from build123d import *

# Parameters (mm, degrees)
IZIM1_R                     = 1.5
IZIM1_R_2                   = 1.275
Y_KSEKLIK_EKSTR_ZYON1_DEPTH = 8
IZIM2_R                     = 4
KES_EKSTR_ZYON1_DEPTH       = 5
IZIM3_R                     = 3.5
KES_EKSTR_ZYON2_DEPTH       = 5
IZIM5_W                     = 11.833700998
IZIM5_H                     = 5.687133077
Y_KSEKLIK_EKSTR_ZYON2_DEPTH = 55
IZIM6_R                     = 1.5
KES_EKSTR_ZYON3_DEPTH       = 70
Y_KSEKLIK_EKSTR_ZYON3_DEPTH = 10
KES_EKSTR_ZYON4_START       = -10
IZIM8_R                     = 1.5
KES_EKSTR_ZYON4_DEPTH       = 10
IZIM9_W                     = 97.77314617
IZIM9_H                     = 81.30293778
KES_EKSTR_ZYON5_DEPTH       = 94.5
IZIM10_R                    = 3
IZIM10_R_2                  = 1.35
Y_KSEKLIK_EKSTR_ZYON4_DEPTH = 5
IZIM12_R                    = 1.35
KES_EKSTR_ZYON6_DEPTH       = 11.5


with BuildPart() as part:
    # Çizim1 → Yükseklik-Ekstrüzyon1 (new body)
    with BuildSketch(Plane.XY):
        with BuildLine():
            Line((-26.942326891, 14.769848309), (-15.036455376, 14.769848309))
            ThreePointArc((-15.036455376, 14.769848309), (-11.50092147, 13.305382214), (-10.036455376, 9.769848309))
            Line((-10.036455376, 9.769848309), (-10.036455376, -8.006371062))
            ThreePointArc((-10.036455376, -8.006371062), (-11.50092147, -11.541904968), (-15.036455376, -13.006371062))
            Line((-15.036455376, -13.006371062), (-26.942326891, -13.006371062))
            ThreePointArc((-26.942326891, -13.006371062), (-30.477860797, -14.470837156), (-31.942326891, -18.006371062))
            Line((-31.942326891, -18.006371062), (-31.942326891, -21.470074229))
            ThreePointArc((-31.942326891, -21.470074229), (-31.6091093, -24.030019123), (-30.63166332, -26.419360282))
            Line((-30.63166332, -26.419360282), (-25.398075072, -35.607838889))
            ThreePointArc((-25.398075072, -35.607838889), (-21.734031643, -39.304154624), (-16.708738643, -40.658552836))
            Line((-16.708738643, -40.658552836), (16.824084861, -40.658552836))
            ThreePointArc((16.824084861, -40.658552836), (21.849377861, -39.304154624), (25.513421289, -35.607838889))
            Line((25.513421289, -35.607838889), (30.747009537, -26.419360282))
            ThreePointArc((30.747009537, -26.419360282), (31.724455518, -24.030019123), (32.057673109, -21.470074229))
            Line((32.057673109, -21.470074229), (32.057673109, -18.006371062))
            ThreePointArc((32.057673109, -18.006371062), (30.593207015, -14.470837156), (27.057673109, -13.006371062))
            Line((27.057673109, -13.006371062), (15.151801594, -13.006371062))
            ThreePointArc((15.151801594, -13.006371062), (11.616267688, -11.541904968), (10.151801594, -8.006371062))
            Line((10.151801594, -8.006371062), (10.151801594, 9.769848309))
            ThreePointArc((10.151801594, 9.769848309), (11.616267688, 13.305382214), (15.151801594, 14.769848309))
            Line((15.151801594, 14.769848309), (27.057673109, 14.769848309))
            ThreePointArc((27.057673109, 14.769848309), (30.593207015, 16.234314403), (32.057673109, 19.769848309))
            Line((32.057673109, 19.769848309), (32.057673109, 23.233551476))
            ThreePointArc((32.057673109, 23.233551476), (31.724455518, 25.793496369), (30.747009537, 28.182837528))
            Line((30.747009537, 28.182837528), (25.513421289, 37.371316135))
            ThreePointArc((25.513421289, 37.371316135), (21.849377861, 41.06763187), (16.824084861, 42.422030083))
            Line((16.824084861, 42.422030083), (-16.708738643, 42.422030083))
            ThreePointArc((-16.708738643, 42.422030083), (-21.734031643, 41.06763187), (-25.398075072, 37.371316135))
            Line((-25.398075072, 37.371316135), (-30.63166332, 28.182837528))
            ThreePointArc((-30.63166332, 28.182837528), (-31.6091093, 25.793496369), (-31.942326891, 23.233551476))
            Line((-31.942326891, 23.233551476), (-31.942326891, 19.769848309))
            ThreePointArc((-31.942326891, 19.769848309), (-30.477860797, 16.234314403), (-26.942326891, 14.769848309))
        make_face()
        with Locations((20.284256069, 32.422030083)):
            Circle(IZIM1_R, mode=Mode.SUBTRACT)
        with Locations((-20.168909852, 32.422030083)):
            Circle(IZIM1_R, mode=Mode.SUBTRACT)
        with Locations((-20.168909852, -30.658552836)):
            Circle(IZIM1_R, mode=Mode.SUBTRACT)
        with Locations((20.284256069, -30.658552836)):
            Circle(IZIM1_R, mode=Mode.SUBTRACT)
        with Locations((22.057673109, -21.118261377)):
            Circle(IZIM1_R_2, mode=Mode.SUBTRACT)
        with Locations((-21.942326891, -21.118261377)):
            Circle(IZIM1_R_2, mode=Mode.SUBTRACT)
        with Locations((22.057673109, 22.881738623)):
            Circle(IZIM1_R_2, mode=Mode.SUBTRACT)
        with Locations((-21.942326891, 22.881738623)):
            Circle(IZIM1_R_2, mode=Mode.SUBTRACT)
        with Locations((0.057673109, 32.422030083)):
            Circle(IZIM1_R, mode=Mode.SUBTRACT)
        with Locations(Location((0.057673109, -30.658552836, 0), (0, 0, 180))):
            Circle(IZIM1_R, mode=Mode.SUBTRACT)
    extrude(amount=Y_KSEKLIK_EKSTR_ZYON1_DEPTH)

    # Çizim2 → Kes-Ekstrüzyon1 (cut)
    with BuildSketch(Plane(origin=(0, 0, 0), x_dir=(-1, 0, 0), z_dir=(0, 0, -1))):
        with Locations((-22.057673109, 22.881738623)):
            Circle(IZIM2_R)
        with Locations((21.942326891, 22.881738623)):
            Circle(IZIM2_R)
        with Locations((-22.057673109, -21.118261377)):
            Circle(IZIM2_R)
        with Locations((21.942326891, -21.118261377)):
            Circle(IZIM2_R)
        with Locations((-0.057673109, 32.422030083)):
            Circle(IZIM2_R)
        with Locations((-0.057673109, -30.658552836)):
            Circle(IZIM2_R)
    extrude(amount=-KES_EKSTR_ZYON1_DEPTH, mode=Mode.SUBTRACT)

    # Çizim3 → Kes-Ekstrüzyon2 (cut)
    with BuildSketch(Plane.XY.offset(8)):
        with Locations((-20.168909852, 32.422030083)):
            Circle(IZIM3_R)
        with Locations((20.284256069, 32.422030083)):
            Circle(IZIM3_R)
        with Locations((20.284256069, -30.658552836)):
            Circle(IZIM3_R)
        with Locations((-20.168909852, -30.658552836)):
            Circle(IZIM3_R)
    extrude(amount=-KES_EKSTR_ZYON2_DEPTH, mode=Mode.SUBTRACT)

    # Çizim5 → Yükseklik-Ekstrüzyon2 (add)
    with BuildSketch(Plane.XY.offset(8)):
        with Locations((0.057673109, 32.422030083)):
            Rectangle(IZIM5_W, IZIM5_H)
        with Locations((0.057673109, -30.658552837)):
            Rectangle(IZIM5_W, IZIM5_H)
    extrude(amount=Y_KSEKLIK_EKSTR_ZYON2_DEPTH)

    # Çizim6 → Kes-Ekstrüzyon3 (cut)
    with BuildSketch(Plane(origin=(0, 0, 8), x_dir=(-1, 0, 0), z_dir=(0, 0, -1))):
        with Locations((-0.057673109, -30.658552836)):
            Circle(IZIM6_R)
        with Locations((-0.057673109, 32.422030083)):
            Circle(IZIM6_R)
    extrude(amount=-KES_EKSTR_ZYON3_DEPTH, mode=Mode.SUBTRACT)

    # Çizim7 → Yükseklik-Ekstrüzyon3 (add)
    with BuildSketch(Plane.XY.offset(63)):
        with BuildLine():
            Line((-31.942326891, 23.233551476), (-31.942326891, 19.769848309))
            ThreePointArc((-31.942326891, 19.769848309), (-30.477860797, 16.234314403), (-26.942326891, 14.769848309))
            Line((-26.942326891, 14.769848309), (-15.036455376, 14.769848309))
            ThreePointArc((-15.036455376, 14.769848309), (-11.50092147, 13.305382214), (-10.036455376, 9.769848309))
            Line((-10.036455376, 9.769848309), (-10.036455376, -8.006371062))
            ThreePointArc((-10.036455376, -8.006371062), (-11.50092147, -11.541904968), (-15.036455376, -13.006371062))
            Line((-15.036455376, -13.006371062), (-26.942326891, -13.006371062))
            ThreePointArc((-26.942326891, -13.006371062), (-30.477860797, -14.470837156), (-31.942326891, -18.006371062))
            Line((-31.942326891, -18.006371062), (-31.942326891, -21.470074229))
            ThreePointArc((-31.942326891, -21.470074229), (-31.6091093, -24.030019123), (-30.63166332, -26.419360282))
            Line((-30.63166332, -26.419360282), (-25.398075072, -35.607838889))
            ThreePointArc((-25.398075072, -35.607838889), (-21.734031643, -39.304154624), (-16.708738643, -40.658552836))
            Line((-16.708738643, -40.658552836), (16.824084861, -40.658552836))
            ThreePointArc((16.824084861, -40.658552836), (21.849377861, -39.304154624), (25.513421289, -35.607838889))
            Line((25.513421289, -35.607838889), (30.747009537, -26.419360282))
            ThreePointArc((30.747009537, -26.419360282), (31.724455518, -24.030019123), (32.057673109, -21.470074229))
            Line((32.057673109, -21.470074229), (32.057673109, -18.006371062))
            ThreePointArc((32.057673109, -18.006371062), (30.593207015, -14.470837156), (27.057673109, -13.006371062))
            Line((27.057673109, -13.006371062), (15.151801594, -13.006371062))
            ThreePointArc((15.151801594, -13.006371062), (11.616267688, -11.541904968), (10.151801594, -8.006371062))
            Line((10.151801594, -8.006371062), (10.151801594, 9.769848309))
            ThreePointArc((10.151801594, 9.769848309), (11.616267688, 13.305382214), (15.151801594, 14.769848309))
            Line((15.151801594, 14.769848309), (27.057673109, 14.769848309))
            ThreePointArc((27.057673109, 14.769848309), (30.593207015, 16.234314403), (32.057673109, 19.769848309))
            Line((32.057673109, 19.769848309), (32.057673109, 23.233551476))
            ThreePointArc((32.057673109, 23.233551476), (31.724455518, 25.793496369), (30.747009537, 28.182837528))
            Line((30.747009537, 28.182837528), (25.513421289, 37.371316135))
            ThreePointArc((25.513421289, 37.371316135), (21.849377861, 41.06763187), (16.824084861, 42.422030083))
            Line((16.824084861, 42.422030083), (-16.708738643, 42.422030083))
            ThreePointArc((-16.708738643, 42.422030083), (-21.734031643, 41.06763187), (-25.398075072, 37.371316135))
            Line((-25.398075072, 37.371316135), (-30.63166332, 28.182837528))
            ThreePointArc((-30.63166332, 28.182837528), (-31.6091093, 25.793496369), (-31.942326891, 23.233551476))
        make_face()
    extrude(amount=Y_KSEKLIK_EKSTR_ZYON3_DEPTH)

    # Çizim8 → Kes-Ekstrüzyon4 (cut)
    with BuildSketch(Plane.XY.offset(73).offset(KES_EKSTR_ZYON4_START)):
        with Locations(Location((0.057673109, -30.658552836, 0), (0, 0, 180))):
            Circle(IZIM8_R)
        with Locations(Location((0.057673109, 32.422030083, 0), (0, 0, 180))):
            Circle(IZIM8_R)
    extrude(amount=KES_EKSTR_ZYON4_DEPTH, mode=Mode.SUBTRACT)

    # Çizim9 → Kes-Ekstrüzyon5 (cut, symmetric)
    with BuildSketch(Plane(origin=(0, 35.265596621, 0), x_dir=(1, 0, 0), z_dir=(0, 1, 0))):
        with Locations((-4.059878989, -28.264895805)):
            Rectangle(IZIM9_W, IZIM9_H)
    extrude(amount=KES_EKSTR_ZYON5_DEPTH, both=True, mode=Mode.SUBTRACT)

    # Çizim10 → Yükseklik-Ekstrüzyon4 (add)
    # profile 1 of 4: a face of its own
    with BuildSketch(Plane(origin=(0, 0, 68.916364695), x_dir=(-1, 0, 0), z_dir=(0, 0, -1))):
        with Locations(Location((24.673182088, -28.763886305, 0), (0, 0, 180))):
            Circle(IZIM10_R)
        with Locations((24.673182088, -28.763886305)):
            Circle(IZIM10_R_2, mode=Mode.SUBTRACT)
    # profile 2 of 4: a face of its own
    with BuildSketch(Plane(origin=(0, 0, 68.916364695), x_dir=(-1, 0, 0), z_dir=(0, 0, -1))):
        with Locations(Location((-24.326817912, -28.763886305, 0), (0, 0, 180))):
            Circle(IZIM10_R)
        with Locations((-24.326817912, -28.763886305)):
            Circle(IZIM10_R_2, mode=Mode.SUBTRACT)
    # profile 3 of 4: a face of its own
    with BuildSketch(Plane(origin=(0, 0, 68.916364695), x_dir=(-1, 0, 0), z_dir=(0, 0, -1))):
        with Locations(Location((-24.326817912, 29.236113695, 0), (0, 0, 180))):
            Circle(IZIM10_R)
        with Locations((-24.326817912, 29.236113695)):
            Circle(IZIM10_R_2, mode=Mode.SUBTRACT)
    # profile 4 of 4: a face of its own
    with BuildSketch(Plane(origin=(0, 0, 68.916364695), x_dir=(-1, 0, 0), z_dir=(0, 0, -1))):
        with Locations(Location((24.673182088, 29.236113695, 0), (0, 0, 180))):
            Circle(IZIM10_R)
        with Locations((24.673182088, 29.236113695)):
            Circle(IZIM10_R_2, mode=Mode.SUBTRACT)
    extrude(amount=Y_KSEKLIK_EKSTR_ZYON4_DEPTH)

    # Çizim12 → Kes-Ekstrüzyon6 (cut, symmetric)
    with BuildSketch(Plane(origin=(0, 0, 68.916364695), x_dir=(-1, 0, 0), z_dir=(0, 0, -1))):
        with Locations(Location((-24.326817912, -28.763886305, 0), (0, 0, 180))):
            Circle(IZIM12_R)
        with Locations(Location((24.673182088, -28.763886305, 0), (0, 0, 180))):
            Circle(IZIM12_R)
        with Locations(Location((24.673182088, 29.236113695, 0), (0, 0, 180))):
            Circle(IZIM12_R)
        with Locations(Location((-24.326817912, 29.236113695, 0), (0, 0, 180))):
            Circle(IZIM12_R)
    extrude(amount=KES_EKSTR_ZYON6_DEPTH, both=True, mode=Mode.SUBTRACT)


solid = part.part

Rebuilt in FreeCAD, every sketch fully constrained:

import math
import FreeCAD as App
import Part
import Sketcher
from FreeCAD import Vector

doc = App.newDocument("Part")
body = doc.addObject("PartDesign::Body", "Body")

# Sketch on XY plane
sketch1 = body.newObject("Sketcher::SketchObject", "Sketch")
sketch1.AttachmentSupport = (doc.getObject("XY_Plane"), [""])
sketch1.MapMode = "FlatFace"
sketch1.addGeometry([
    Part.LineSegment(Vector(-26.9, 14.8, 0), Vector(-15, 14.8, 0)),  # 0
    Part.ArcOfCircle(Part.Circle(Vector(-15, 9.8, 0), Vector(0, 0, 1), 5), math.radians(0), math.radians(90)),  # 1
    Part.LineSegment(Vector(-10, 9.8, 0), Vector(-10, -8, 0)),  # 2
    Part.ArcOfCircle(Part.Circle(Vector(-15, -8, 0), Vector(0, 0, 1), 5), math.radians(-90), math.radians(0)),  # 3
    Part.LineSegment(Vector(-15, -13, 0), Vector(-26.9, -13, 0)),  # 4
    Part.ArcOfCircle(Part.Circle(Vector(-26.9, -18, 0), Vector(0, 0, 1), 5), math.radians(90), math.radians(180)),  # 5
    Part.LineSegment(Vector(-31.9, -18, 0), Vector(-31.9, -21.5, 0)),  # 6
    Part.ArcOfCircle(Part.Circle(Vector(-21.9, -21.5, 0), Vector(0, 0, 1), 10), math.radians(180), math.radians(210)),  # 7
    Part.LineSegment(Vector(-30.6, -26.4, 0), Vector(-25.4, -35.6, 0)),  # 8
    Part.ArcOfCircle(Part.Circle(Vector(-16.7, -30.7, 0), Vector(0, 0, 1), 10), math.radians(-150), math.radians(-90)),  # 9
    Part.LineSegment(Vector(-16.7, -40.7, 0), Vector(16.8, -40.7, 0)),  # 10
    Part.ArcOfCircle(Part.Circle(Vector(16.8, -30.7, 0), Vector(0, 0, 1), 10), math.radians(-90), math.radians(-30)),  # 11
    Part.LineSegment(Vector(25.5, -35.6, 0), Vector(30.7, -26.4, 0)),  # 12
    Part.ArcOfCircle(Part.Circle(Vector(22.1, -21.5, 0), Vector(0, 0, 1), 10), math.radians(-30), math.radians(0)),  # 13
    Part.LineSegment(Vector(32.1, -21.5, 0), Vector(32.1, -18, 0)),  # 14
    Part.ArcOfCircle(Part.Circle(Vector(27.1, -18, 0), Vector(0, 0, 1), 5), math.radians(0), math.radians(90)),  # 15
    Part.LineSegment(Vector(27.1, -13, 0), Vector(15.2, -13, 0)),  # 16
    Part.ArcOfCircle(Part.Circle(Vector(15.2, -8, 0), Vector(0, 0, 1), 5), math.radians(180), math.radians(270)),  # 17
    Part.LineSegment(Vector(10.2, -8, 0), Vector(10.2, 9.8, 0)),  # 18
    Part.ArcOfCircle(Part.Circle(Vector(15.2, 9.8, 0), Vector(0, 0, 1), 5), math.radians(90), math.radians(180)),  # 19
    Part.LineSegment(Vector(15.2, 14.8, 0), Vector(27.1, 14.8, 0)),  # 20
    Part.ArcOfCircle(Part.Circle(Vector(27.1, 19.8, 0), Vector(0, 0, 1), 5), math.radians(-90), math.radians(0)),  # 21
    Part.LineSegment(Vector(32.1, 19.8, 0), Vector(32.1, 23.2, 0)),  # 22
    Part.ArcOfCircle(Part.Circle(Vector(22.1, 23.2, 0), Vector(0, 0, 1), 10), math.radians(0), math.radians(30)),  # 23
    Part.LineSegment(Vector(30.7, 28.2, 0), Vector(25.5, 37.4, 0)),  # 24
    Part.ArcOfCircle(Part.Circle(Vector(16.8, 32.4, 0), Vector(0, 0, 1), 10), math.radians(30), math.radians(90)),  # 25
    Part.LineSegment(Vector(16.8, 42.4, 0), Vector(-16.7, 42.4, 0)),  # 26
    Part.ArcOfCircle(Part.Circle(Vector(-16.7, 32.4, 0), Vector(0, 0, 1), 10), math.radians(90), math.radians(150)),  # 27
    Part.LineSegment(Vector(-25.4, 37.4, 0), Vector(-30.6, 28.2, 0)),  # 28
    Part.ArcOfCircle(Part.Circle(Vector(-21.9, 23.2, 0), Vector(0, 0, 1), 10), math.radians(150), math.radians(180)),  # 29
    Part.LineSegment(Vector(-31.9, 23.2, 0), Vector(-31.9, 19.8, 0)),  # 30
    Part.ArcOfCircle(Part.Circle(Vector(-26.9, 19.8, 0), Vector(0, 0, 1), 5), math.radians(180), math.radians(270)),  # 31
    Part.Circle(Vector(-20.2, -30.7, 0), Vector(0, 0, 1), 1.5),  # 32
    Part.Circle(Vector(-21.9, -21.1, 0), Vector(0, 0, 1), 1.3),  # 33
    Part.Circle(Vector(0.1, -30.7, 0), Vector(0, 0, 1), 1.5),  # 34
    Part.Circle(Vector(20.3, -30.7, 0), Vector(0, 0, 1), 1.5),  # 35
    Part.Circle(Vector(22.1, -21.1, 0), Vector(0, 0, 1), 1.3),  # 36
    Part.Circle(Vector(-21.9, 22.9, 0), Vector(0, 0, 1), 1.3),  # 37
    Part.Circle(Vector(-20.2, 32.4, 0), Vector(0, 0, 1), 1.5),  # 38
    Part.Circle(Vector(0.1, 32.4, 0), Vector(0, 0, 1), 1.5),  # 39
    Part.Circle(Vector(22.1, 22.9, 0), Vector(0, 0, 1), 1.3),  # 40
    Part.Circle(Vector(20.3, 32.4, 0), Vector(0, 0, 1), 1.5),  # 41
], False)
sketch1.addConstraint([
    Sketcher.Constraint("Tangent", 0, 2, 1, 2),
    Sketcher.Constraint("Tangent", 1, 1, 2, 1),
    Sketcher.Constraint("Tangent", 2, 2, 3, 2),
    Sketcher.Constraint("Tangent", 3, 1, 4, 1),
    Sketcher.Constraint("Tangent", 4, 2, 5, 1),
    Sketcher.Constraint("Tangent", 5, 2, 6, 1),
    Sketcher.Constraint("Tangent", 6, 2, 7, 1),
    Sketcher.Constraint("Tangent", 7, 2, 8, 1),
    Sketcher.Constraint("Tangent", 8, 2, 9, 1),
    Sketcher.Constraint("Tangent", 9, 2, 10, 1),
    Sketcher.Constraint("Tangent", 10, 2, 11, 1),
    Sketcher.Constraint("Tangent", 11, 2, 12, 1),
    Sketcher.Constraint("Tangent", 12, 2, 13, 1),
    Sketcher.Constraint("Tangent", 13, 2, 14, 1),
    Sketcher.Constraint("Tangent", 14, 2, 15, 1),
    Sketcher.Constraint("Tangent", 15, 2, 16, 1),
    Sketcher.Constraint("Tangent", 16, 2, 17, 2),
    Sketcher.Constraint("Tangent", 17, 1, 18, 1),
    Sketcher.Constraint("Tangent", 18, 2, 19, 2),
    Sketcher.Constraint("Tangent", 19, 1, 20, 1),
    Sketcher.Constraint("Tangent", 20, 2, 21, 1),
    Sketcher.Constraint("Tangent", 21, 2, 22, 1),
    Sketcher.Constraint("Tangent", 22, 2, 23, 1),
    Sketcher.Constraint("Tangent", 23, 2, 24, 1),
    Sketcher.Constraint("Tangent", 24, 2, 25, 1),
    Sketcher.Constraint("Tangent", 25, 2, 26, 1),
    Sketcher.Constraint("Tangent", 26, 2, 27, 1),
    Sketcher.Constraint("Tangent", 27, 2, 28, 1),
    Sketcher.Constraint("Tangent", 28, 2, 29, 1),
    Sketcher.Constraint("Tangent", 29, 2, 30, 1),
    Sketcher.Constraint("Tangent", 30, 2, 31, 1),
    Sketcher.Constraint("Tangent", 31, 2, 0, 1),
    Sketcher.Constraint("Horizontal", 0),
    Sketcher.Constraint("Vertical", 2),
    Sketcher.Constraint("Horizontal", 4),
    Sketcher.Constraint("Vertical", 6),
    Sketcher.Constraint("Horizontal", 10),
    Sketcher.Constraint("Vertical", 14),
    Sketcher.Constraint("Horizontal", 16),
    Sketcher.Constraint("Vertical", 18),
    Sketcher.Constraint("Horizontal", 20),
    Sketcher.Constraint("Vertical", 22),
    Sketcher.Constraint("Horizontal", 26),
    Sketcher.Constraint("Vertical", 30),
    Sketcher.Constraint("Equal", 1, 3),
    Sketcher.Constraint("Equal", 3, 5),
    Sketcher.Constraint("Equal", 7, 9),
    Sketcher.Constraint("Equal", 9, 11),
    Sketcher.Constraint("Equal", 11, 13),
    Sketcher.Constraint("Equal", 5, 15),
    Sketcher.Constraint("Equal", 15, 17),
    Sketcher.Constraint("Equal", 17, 19),
    Sketcher.Constraint("Equal", 19, 21),
    Sketcher.Constraint("Equal", 13, 23),
    Sketcher.Constraint("Equal", 23, 25),
    Sketcher.Constraint("Equal", 25, 27),
    Sketcher.Constraint("Equal", 27, 29),
    Sketcher.Constraint("Equal", 21, 31),
    Sketcher.Constraint("Equal", 32, 34),
    Sketcher.Constraint("Equal", 34, 35),
    Sketcher.Constraint("Equal", 33, 36),
    Sketcher.Constraint("Equal", 36, 37),
    Sketcher.Constraint("Equal", 35, 38),
    Sketcher.Constraint("Equal", 38, 39),
    Sketcher.Constraint("Equal", 37, 40),
    Sketcher.Constraint("Equal", 39, 41),
    Sketcher.Constraint("Parallel", 8, 24),
    Sketcher.Constraint("Parallel", 12, 28),
    Sketcher.Constraint("Horizontal", 7, 3, 13, 3),
    Sketcher.Constraint("Horizontal", 5, 3, 15, 3),
    Sketcher.Constraint("Horizontal", 1, 3, 19, 3),
    Sketcher.Constraint("Horizontal", 23, 3, 29, 3),
    Sketcher.Constraint("Horizontal", 11, 3, 32, 3),
    Sketcher.Constraint("Horizontal", 32, 3, 34, 3),
    Sketcher.Constraint("Horizontal", 34, 3, 35, 3),
    Sketcher.Constraint("Horizontal", 33, 3, 36, 3),
    Sketcher.Constraint("Horizontal", 27, 3, 38, 3),
    Sketcher.Constraint("Horizontal", 38, 3, 39, 3),
    Sketcher.Constraint("Horizontal", 37, 3, 40, 3),
    Sketcher.Constraint("Horizontal", 39, 3, 41, 3),
    Sketcher.Constraint("Horizontal", 8, 2, 11, 2),
    Sketcher.Constraint("Vertical", 15, 3, 21, 3),
    Sketcher.Constraint("Vertical", 11, 3, 25, 3),
    Sketcher.Constraint("Vertical", 9, 3, 27, 3),
    Sketcher.Constraint("Vertical", 29, 3, 33, 3),
    Sketcher.Constraint("Vertical", 23, 3, 36, 3),
    Sketcher.Constraint("Vertical", 33, 3, 37, 3),
    Sketcher.Constraint("Vertical", 32, 3, 38, 3),
    Sketcher.Constraint("Vertical", 34, 3, 39, 3),
    Sketcher.Constraint("Vertical", 36, 3, 40, 3),
    Sketcher.Constraint("Vertical", 35, 3, 41, 3),
    Sketcher.Constraint("Equal", 4, 16),
    Sketcher.Constraint("Equal", 14, 22),
    Sketcher.Constraint("Diameter", 32, 3.0),
    Sketcher.Constraint("Radius", 1, 5.0),
    Sketcher.Constraint("Radius", 7, 10.0),
    Sketcher.Constraint("Diameter", 33, 2.55),
    Sketcher.Constraint("DistanceX", 7, 3, 13, 3, 44.0),
    Sketcher.Constraint("DistanceX", 7, 3, 34, 3, 22.0),
    Sketcher.Constraint("DistanceX", 0, 1, 0, 2, 11.905872),
    Sketcher.Constraint("DistanceY", 2, 2, 2, 1, 17.776219),
    Sketcher.Constraint("DistanceX", -1, 1, 17, 3, 15.151802),
    Sketcher.Constraint("DistanceY", 9, 3, 1, 3, 40.428401),
    Sketcher.Constraint("DistanceY", 7, 2, 33, 3, 5.301099),
    Sketcher.Constraint("DistanceY", 40, 3, 23, 2, 5.301099),
    Sketcher.Constraint("Distance", 8, 10.574431),
    Sketcher.Constraint("DistanceX", 10, 1, 10, 2, 33.532824),
    Sketcher.Constraint("DistanceY", -1, 1, 1, 3, 9.769848),
    Sketcher.Constraint("DistanceX", 32, 3, -1, 1, 20.16891),
    Sketcher.Constraint("DistanceX", 11, 3, 35, 3, 3.460171),
])
pad1 = body.newObject("PartDesign::Pad", "Pad")
pad1.Profile = sketch1
pad1.Length = 8

# Sketch on XY plane
sketch2 = body.newObject("Sketcher::SketchObject", "Sketch001")
sketch2.AttachmentSupport = (doc.getObject("XY_Plane"), [""])
sketch2.MapMode = "FlatFace"
sketch2.addGeometry([
    Part.Circle(Vector(22.1, 22.9, 0), Vector(0, 0, 1), 4),  # 0
    Part.Circle(Vector(-21.9, 22.9, 0), Vector(0, 0, 1), 4),  # 1
    Part.Circle(Vector(22.1, -21.1, 0), Vector(0, 0, 1), 4),  # 2
    Part.Circle(Vector(-21.9, -21.1, 0), Vector(0, 0, 1), 4),  # 3
    Part.Circle(Vector(0.1, 32.4, 0), Vector(0, 0, 1), 4),  # 4
    Part.Circle(Vector(0.1, -30.7, 0), Vector(0, 0, 1), 4),  # 5
], False)
sketch2.addConstraint([
    Sketcher.Constraint("Equal", 0, 1),
    Sketcher.Constraint("Equal", 1, 2),
    Sketcher.Constraint("Equal", 2, 3),
    Sketcher.Constraint("Equal", 3, 4),
    Sketcher.Constraint("Equal", 4, 5),
    Sketcher.Constraint("Horizontal", 0, 3, 1, 3),
    Sketcher.Constraint("Horizontal", 2, 3, 3, 3),
    Sketcher.Constraint("Vertical", 0, 3, 2, 3),
    Sketcher.Constraint("Vertical", 1, 3, 3, 3),
    Sketcher.Constraint("Vertical", 4, 3, 5, 3),
    Sketcher.Constraint("Diameter", 0, 8.0),
    Sketcher.Constraint("DistanceX", 1, 3, 0, 3, 44.0),
    Sketcher.Constraint("DistanceY", 2, 3, 0, 3, 44.0),
    Sketcher.Constraint("DistanceX", 4, 3, 0, 3, 22.0),
    Sketcher.Constraint("DistanceY", -1, 1, 0, 3, 22.881739),
    Sketcher.Constraint("DistanceY", -1, 1, 4, 3, 32.42203),
    Sketcher.Constraint("DistanceY", 5, 3, 2, 3, 9.540291),
    Sketcher.Constraint("DistanceX", -1, 1, 0, 3, 22.057673),
])
pocket1 = body.newObject("PartDesign::Pocket", "Pocket")
pocket1.Profile = sketch2
pocket1.Length = 5
pocket1.Reversed = True

# Sketch on XY plane
sketch3 = body.newObject("Sketcher::SketchObject", "Sketch002")
sketch3.AttachmentSupport = (doc.getObject("XY_Plane"), [""])
sketch3.MapMode = "FlatFace"
sketch3.AttachmentOffset = App.Placement(Vector(0, 0, 8), App.Rotation())
sketch3.addGeometry([
    Part.Circle(Vector(-20.2, 32.4, 0), Vector(0, 0, 1), 3.5),
    Part.Circle(Vector(20.3, 32.4, 0), Vector(0, 0, 1), 3.5),
    Part.Circle(Vector(20.3, -30.7, 0), Vector(0, 0, 1), 3.5),
    Part.Circle(Vector(-20.2, -30.7, 0), Vector(0, 0, 1), 3.5),
], False)
sketch3.addConstraint([
    Sketcher.Constraint("Equal", 0, 1),
    Sketcher.Constraint("Equal", 1, 2),
    Sketcher.Constraint("Equal", 2, 3),
    Sketcher.Constraint("Horizontal", 0, 3, 1, 3),
    Sketcher.Constraint("Horizontal", 2, 3, 3, 3),
    Sketcher.Constraint("Vertical", 1, 3, 2, 3),
    Sketcher.Constraint("Vertical", 0, 3, 3, 3),
    Sketcher.Constraint("Diameter", 0, 7.0),
    Sketcher.Constraint("DistanceX", 0, 3, -1, 1, 20.16891),
    Sketcher.Constraint("DistanceY", -1, 1, 0, 3, 32.42203),
    Sketcher.Constraint("DistanceX", -1, 1, 1, 3, 20.284256),
    Sketcher.Constraint("DistanceY", 2, 3, -1, 1, 30.658553),
])
pocket2 = body.newObject("PartDesign::Pocket", "Pocket001")
pocket2.Profile = sketch3
pocket2.Length = 5

# Sketch on XY plane
sketch4 = body.newObject("Sketcher::SketchObject", "Sketch003")
sketch4.AttachmentSupport = (doc.getObject("XY_Plane"), [""])
sketch4.MapMode = "FlatFace"
sketch4.AttachmentOffset = App.Placement(Vector(0, 0, 8), App.Rotation())
sketch4.addGeometry([
    Part.LineSegment(Vector(-6, 35, 0), Vector(-6, 30, 0)),  # 0
    Part.LineSegment(Vector(-6, 30, 0), Vector(6, 30, 0)),  # 1
    Part.LineSegment(Vector(6, 30, 0), Vector(6, 35, 0)),  # 2
    Part.LineSegment(Vector(6, 35, 0), Vector(-6, 35, 0)),  # 3
    Part.LineSegment(Vector(-6, -28, 0), Vector(-6, -34, 0)),  # 4
    Part.LineSegment(Vector(-6, -34, 0), Vector(6, -34, 0)),  # 5
    Part.LineSegment(Vector(6, -34, 0), Vector(6, -28, 0)),  # 6
    Part.LineSegment(Vector(6, -28, 0), Vector(-6, -28, 0)),  # 7
], False)
sketch4.addConstraint([
    Sketcher.Constraint("Coincident", 0, 2, 1, 1),
    Sketcher.Constraint("Coincident", 1, 2, 2, 1),
    Sketcher.Constraint("Coincident", 2, 2, 3, 1),
    Sketcher.Constraint("Coincident", 3, 2, 0, 1),
    Sketcher.Constraint("Coincident", 4, 2, 5, 1),
    Sketcher.Constraint("Coincident", 5, 2, 6, 1),
    Sketcher.Constraint("Coincident", 6, 2, 7, 1),
    Sketcher.Constraint("Coincident", 7, 2, 4, 1),
    Sketcher.Constraint("Vertical", 0),
    Sketcher.Constraint("Horizontal", 1),
    Sketcher.Constraint("Vertical", 2),
    Sketcher.Constraint("Horizontal", 3),
    Sketcher.Constraint("Vertical", 4),
    Sketcher.Constraint("Horizontal", 5),
    Sketcher.Constraint("Vertical", 6),
    Sketcher.Constraint("Horizontal", 7),
    Sketcher.Constraint("Vertical", 3, 2, 4, 2),
    Sketcher.Constraint("Vertical", 2, 2, 5, 2),
    Sketcher.Constraint("Equal", 2, 4),
    Sketcher.Constraint("DistanceX", 1, 1, 1, 2, 11.833701),
    Sketcher.Constraint("DistanceY", 0, 2, 0, 1, 5.687133),
    Sketcher.Constraint("DistanceY", 4, 2, -1, 1, 33.502119),
    Sketcher.Constraint("DistanceY", 6, 2, 1, 2, 57.39345),
    Sketcher.Constraint("DistanceX", 0, 2, -1, 1, 5.859177),
])
pad2 = body.newObject("PartDesign::Pad", "Pad001")
pad2.Profile = sketch4
pad2.Length = 55

# Sketch on XY plane
sketch5 = body.newObject("Sketcher::SketchObject", "Sketch004")
sketch5.AttachmentSupport = (doc.getObject("XY_Plane"), [""])
sketch5.MapMode = "FlatFace"
sketch5.AttachmentOffset = App.Placement(Vector(0, 0, 8), App.Rotation())
sketch5.addGeometry([
    Part.Circle(Vector(0.1, -30.7, 0), Vector(0, 0, 1), 1.5),
    Part.Circle(Vector(0.1, 32.4, 0), Vector(0, 0, 1), 1.5),
], False)
sketch5.addConstraint([
    Sketcher.Constraint("Equal", 0, 1),
    Sketcher.Constraint("Vertical", 0, 3, 1, 3),
    Sketcher.Constraint("Diameter", 0, 3.0),
    Sketcher.Constraint("DistanceY", -1, 1, 1, 3, 32.42203),
    Sketcher.Constraint("DistanceX", -1, 1, 0, 3, 0.057673),
    Sketcher.Constraint("DistanceY", 0, 3, -1, 1, 30.658553),
])
pocket3 = body.newObject("PartDesign::Pocket", "Pocket002")
pocket3.Profile = sketch5
pocket3.Length = 70
pocket3.Reversed = True

# Sketch on XY plane
sketch6 = body.newObject("Sketcher::SketchObject", "Sketch005")
sketch6.AttachmentSupport = (doc.getObject("XY_Plane"), [""])
sketch6.MapMode = "FlatFace"
sketch6.AttachmentOffset = App.Placement(Vector(0, 0, 63), App.Rotation())
sketch6.addGeometry([
    Part.LineSegment(Vector(-31.9, 23.2, 0), Vector(-31.9, 19.8, 0)),  # 0
    Part.ArcOfCircle(Part.Circle(Vector(-26.9, 19.8, 0), Vector(0, 0, 1), 5), math.radians(180), math.radians(270)),  # 1
    Part.LineSegment(Vector(-26.9, 14.8, 0), Vector(-15, 14.8, 0)),  # 2
    Part.ArcOfCircle(Part.Circle(Vector(-15, 9.8, 0), Vector(0, 0, 1), 5), math.radians(0), math.radians(90)),  # 3
    Part.LineSegment(Vector(-10, 9.8, 0), Vector(-10, -8, 0)),  # 4
    Part.ArcOfCircle(Part.Circle(Vector(-15, -8, 0), Vector(0, 0, 1), 5), math.radians(-90), math.radians(0)),  # 5
    Part.LineSegment(Vector(-15, -13, 0), Vector(-26.9, -13, 0)),  # 6
    Part.ArcOfCircle(Part.Circle(Vector(-26.9, -18, 0), Vector(0, 0, 1), 5), math.radians(90), math.radians(180)),  # 7
    Part.LineSegment(Vector(-31.9, -18, 0), Vector(-31.9, -21.5, 0)),  # 8
    Part.ArcOfCircle(Part.Circle(Vector(-21.9, -21.5, 0), Vector(0, 0, 1), 10), math.radians(180), math.radians(210)),  # 9
    Part.LineSegment(Vector(-30.6, -26.4, 0), Vector(-25.4, -35.6, 0)),  # 10
    Part.ArcOfCircle(Part.Circle(Vector(-16.7, -30.7, 0), Vector(0, 0, 1), 10), math.radians(-150), math.radians(-90)),  # 11
    Part.LineSegment(Vector(-16.7, -40.7, 0), Vector(16.8, -40.7, 0)),  # 12
    Part.ArcOfCircle(Part.Circle(Vector(16.8, -30.7, 0), Vector(0, 0, 1), 10), math.radians(-90), math.radians(-30)),  # 13
    Part.LineSegment(Vector(25.5, -35.6, 0), Vector(30.7, -26.4, 0)),  # 14
    Part.ArcOfCircle(Part.Circle(Vector(22.1, -21.5, 0), Vector(0, 0, 1), 10), math.radians(-30), math.radians(0)),  # 15
    Part.LineSegment(Vector(32.1, -21.5, 0), Vector(32.1, -18, 0)),  # 16
    Part.ArcOfCircle(Part.Circle(Vector(27.1, -18, 0), Vector(0, 0, 1), 5), math.radians(0), math.radians(90)),  # 17
    Part.LineSegment(Vector(27.1, -13, 0), Vector(15.2, -13, 0)),  # 18
    Part.ArcOfCircle(Part.Circle(Vector(15.2, -8, 0), Vector(0, 0, 1), 5), math.radians(180), math.radians(270)),  # 19
    Part.LineSegment(Vector(10.2, -8, 0), Vector(10.2, 9.8, 0)),  # 20
    Part.ArcOfCircle(Part.Circle(Vector(15.2, 9.8, 0), Vector(0, 0, 1), 5), math.radians(90), math.radians(180)),  # 21
    Part.LineSegment(Vector(15.2, 14.8, 0), Vector(27.1, 14.8, 0)),  # 22
    Part.ArcOfCircle(Part.Circle(Vector(27.1, 19.8, 0), Vector(0, 0, 1), 5), math.radians(-90), math.radians(0)),  # 23
    Part.LineSegment(Vector(32.1, 19.8, 0), Vector(32.1, 23.2, 0)),  # 24
    Part.ArcOfCircle(Part.Circle(Vector(22.1, 23.2, 0), Vector(0, 0, 1), 10), math.radians(0), math.radians(30)),  # 25
    Part.LineSegment(Vector(30.7, 28.2, 0), Vector(25.5, 37.4, 0)),  # 26
    Part.ArcOfCircle(Part.Circle(Vector(16.8, 32.4, 0), Vector(0, 0, 1), 10), math.radians(30), math.radians(90)),  # 27
    Part.LineSegment(Vector(16.8, 42.4, 0), Vector(-16.7, 42.4, 0)),  # 28
    Part.ArcOfCircle(Part.Circle(Vector(-16.7, 32.4, 0), Vector(0, 0, 1), 10), math.radians(90), math.radians(150)),  # 29
    Part.LineSegment(Vector(-25.4, 37.4, 0), Vector(-30.6, 28.2, 0)),  # 30
    Part.ArcOfCircle(Part.Circle(Vector(-21.9, 23.2, 0), Vector(0, 0, 1), 10), math.radians(150), math.radians(180)),  # 31
], False)
sketch6.addConstraint([
    Sketcher.Constraint("Tangent", 0, 2, 1, 1),
    Sketcher.Constraint("Tangent", 1, 2, 2, 1),
    Sketcher.Constraint("Tangent", 2, 2, 3, 2),
    Sketcher.Constraint("Tangent", 3, 1, 4, 1),
    Sketcher.Constraint("Tangent", 4, 2, 5, 2),
    Sketcher.Constraint("Tangent", 5, 1, 6, 1),
    Sketcher.Constraint("Tangent", 6, 2, 7, 1),
    Sketcher.Constraint("Tangent", 7, 2, 8, 1),
    Sketcher.Constraint("Tangent", 8, 2, 9, 1),
    Sketcher.Constraint("Tangent", 9, 2, 10, 1),
    Sketcher.Constraint("Tangent", 10, 2, 11, 1),
    Sketcher.Constraint("Tangent", 11, 2, 12, 1),
    Sketcher.Constraint("Tangent", 12, 2, 13, 1),
    Sketcher.Constraint("Tangent", 13, 2, 14, 1),
    Sketcher.Constraint("Tangent", 14, 2, 15, 1),
    Sketcher.Constraint("Tangent", 15, 2, 16, 1),
    Sketcher.Constraint("Tangent", 16, 2, 17, 1),
    Sketcher.Constraint("Tangent", 17, 2, 18, 1),
    Sketcher.Constraint("Tangent", 18, 2, 19, 2),
    Sketcher.Constraint("Tangent", 19, 1, 20, 1),
    Sketcher.Constraint("Tangent", 20, 2, 21, 2),
    Sketcher.Constraint("Tangent", 21, 1, 22, 1),
    Sketcher.Constraint("Tangent", 22, 2, 23, 1),
    Sketcher.Constraint("Tangent", 23, 2, 24, 1),
    Sketcher.Constraint("Tangent", 24, 2, 25, 1),
    Sketcher.Constraint("Tangent", 25, 2, 26, 1),
    Sketcher.Constraint("Tangent", 26, 2, 27, 1),
    Sketcher.Constraint("Tangent", 27, 2, 28, 1),
    Sketcher.Constraint("Tangent", 28, 2, 29, 1),
    Sketcher.Constraint("Tangent", 29, 2, 30, 1),
    Sketcher.Constraint("Tangent", 30, 2, 31, 1),
    Sketcher.Constraint("Tangent", 31, 2, 0, 1),
    Sketcher.Constraint("Vertical", 0),
    Sketcher.Constraint("Horizontal", 2),
    Sketcher.Constraint("Vertical", 4),
    Sketcher.Constraint("Horizontal", 6),
    Sketcher.Constraint("Vertical", 8),
    Sketcher.Constraint("Horizontal", 12),
    Sketcher.Constraint("Vertical", 16),
    Sketcher.Constraint("Horizontal", 18),
    Sketcher.Constraint("Vertical", 20),
    Sketcher.Constraint("Horizontal", 22),
    Sketcher.Constraint("Vertical", 24),
    Sketcher.Constraint("Horizontal", 28),
    Sketcher.Constraint("Equal", 1, 3),
    Sketcher.Constraint("Equal", 3, 5),
    Sketcher.Constraint("Equal", 5, 7),
    Sketcher.Constraint("Equal", 9, 11),
    Sketcher.Constraint("Equal", 11, 13),
    Sketcher.Constraint("Equal", 13, 15),
    Sketcher.Constraint("Equal", 7, 17),
    Sketcher.Constraint("Equal", 17, 19),
    Sketcher.Constraint("Equal", 19, 21),
    Sketcher.Constraint("Equal", 21, 23),
    Sketcher.Constraint("Equal", 15, 25),
    Sketcher.Constraint("Equal", 25, 27),
    Sketcher.Constraint("Equal", 27, 29),
    Sketcher.Constraint("Equal", 29, 31),
    Sketcher.Constraint("Parallel", 10, 26),
    Sketcher.Constraint("Parallel", 14, 30),
    Sketcher.Constraint("Horizontal", 9, 3, 15, 3),
    Sketcher.Constraint("Horizontal", 7, 3, 17, 3),
    Sketcher.Constraint("Horizontal", 3, 3, 21, 3),
    Sketcher.Constraint("Horizontal", 25, 3, 31, 3),
    Sketcher.Constraint("Horizontal", 10, 2, 13, 2),
    Sketcher.Constraint("Vertical", 1, 3, 7, 3),
    Sketcher.Constraint("Vertical", 17, 3, 23, 3),
    Sketcher.Constraint("Vertical", 13, 3, 27, 3),
    Sketcher.Constraint("Equal", 6, 18),
    Sketcher.Constraint("Equal", 0, 8),
    Sketcher.Constraint("Radius", 1, 5.0),
    Sketcher.Constraint("Radius", 9, 10.0),
    Sketcher.Constraint("DistanceX", 9, 3, 15, 3, 44.0),
    Sketcher.Constraint("DistanceX", 2, 1, 2, 2, 11.905872),
    Sketcher.Constraint("DistanceY", 4, 2, 4, 1, 17.776219),
    Sketcher.Constraint("DistanceX", -1, 1, 19, 3, 15.151802),
    Sketcher.Constraint("DistanceY", 11, 3, 3, 3, 40.428401),
    Sketcher.Constraint("Distance", 10, 10.574431),
    Sketcher.Constraint("DistanceX", 12, 1, 12, 2, 33.532824),
    Sketcher.Constraint("DistanceY", -1, 1, 1, 3, 19.769848),
])
pad3 = body.newObject("PartDesign::Pad", "Pad002")
pad3.Profile = sketch6
pad3.Length = 10

# Sketch on XY plane
sketch7 = body.newObject("Sketcher::SketchObject", "Sketch006")
sketch7.AttachmentSupport = (doc.getObject("XY_Plane"), [""])
sketch7.MapMode = "FlatFace"
sketch7.AttachmentOffset = App.Placement(Vector(0, 0, 63), App.Rotation())
sketch7.addGeometry([
    Part.Circle(Vector(0.1, -30.7, 0), Vector(0, 0, 1), 1.5),
    Part.Circle(Vector(0.1, 32.4, 0), Vector(0, 0, 1), 1.5),
], False)
sketch7.addConstraint([
    Sketcher.Constraint("Equal", 0, 1),
    Sketcher.Constraint("Vertical", 0, 3, 1, 3),
    Sketcher.Constraint("Diameter", 0, 3.0),
    Sketcher.Constraint("DistanceY", -1, 1, 1, 3, 32.42203),
    Sketcher.Constraint("DistanceX", -1, 1, 0, 3, 0.057673),
    Sketcher.Constraint("DistanceY", 0, 3, -1, 1, 30.658553),
])
pocket4 = body.newObject("PartDesign::Pocket", "Pocket003")
pocket4.Profile = sketch7
pocket4.Length = 10
pocket4.Reversed = True

# Sketch on XZ plane
sketch8 = body.newObject("Sketcher::SketchObject", "Sketch007")
sketch8.AttachmentSupport = (doc.getObject("XZ_Plane"), [""])
sketch8.MapMode = "FlatFace"
sketch8.AttachmentOffset = App.Placement(Vector(0, 0, -35.265597), App.Rotation())
sketch8.addGeometry([
    Part.LineSegment(Vector(-53, -12, 0), Vector(-53, 69, 0)),
    Part.LineSegment(Vector(-53, 69, 0), Vector(45, 69, 0)),
    Part.LineSegment(Vector(45, 69, 0), Vector(45, -12, 0)),
    Part.LineSegment(Vector(45, -12, 0), Vector(-53, -12, 0)),
], False)
sketch8.addConstraint([
    Sketcher.Constraint("Coincident", 0, 2, 1, 1),
    Sketcher.Constraint("Coincident", 1, 2, 2, 1),
    Sketcher.Constraint("Coincident", 2, 2, 3, 1),
    Sketcher.Constraint("Coincident", 3, 2, 0, 1),
    Sketcher.Constraint("Vertical", 0),
    Sketcher.Constraint("Horizontal", 1),
    Sketcher.Constraint("Vertical", 2),
    Sketcher.Constraint("Horizontal", 3),
    Sketcher.Constraint("DistanceX", 1, 1, 1, 2, 97.773146),
    Sketcher.Constraint("DistanceY", 0, 1, 0, 2, 81.302938),
    Sketcher.Constraint("DistanceX", 0, 2, -1, 1, 52.946452),
    Sketcher.Constraint("DistanceY", -1, 1, 0, 2, 68.916365),
])
pocket5 = body.newObject("PartDesign::Pocket", "Pocket004")
pocket5.Profile = sketch8
pocket5.Length = 189
pocket5.Midplane = True

# Sketch on XY plane
sketch9 = body.newObject("Sketcher::SketchObject", "Sketch008")
sketch9.AttachmentSupport = (doc.getObject("XY_Plane"), [""])
sketch9.MapMode = "FlatFace"
sketch9.AttachmentOffset = App.Placement(Vector(0, 0, 68.916365), App.Rotation())
sketch9.addGeometry([
    Part.Circle(Vector(-24.7, -28.8, 0), Vector(0, 0, 1), 3),  # 0
    Part.Circle(Vector(-24.7, -28.8, 0), Vector(0, 0, 1), 1.4),  # 1
    Part.Circle(Vector(24.3, -28.8, 0), Vector(0, 0, 1), 3),  # 2
    Part.Circle(Vector(24.3, -28.8, 0), Vector(0, 0, 1), 1.4),  # 3
    Part.Circle(Vector(24.3, 29.2, 0), Vector(0, 0, 1), 3),  # 4
    Part.Circle(Vector(24.3, 29.2, 0), Vector(0, 0, 1), 1.4),  # 5
    Part.Circle(Vector(-24.7, 29.2, 0), Vector(0, 0, 1), 3),  # 6
    Part.Circle(Vector(-24.7, 29.2, 0), Vector(0, 0, 1), 1.4),  # 7
], False)
sketch9.addConstraint([
    Sketcher.Constraint("Coincident", 1, 3, 0, 3),
    Sketcher.Constraint("Coincident", 3, 3, 2, 3),
    Sketcher.Constraint("Coincident", 5, 3, 4, 3),
    Sketcher.Constraint("Coincident", 7, 3, 6, 3),
    Sketcher.Constraint("Equal", 0, 2),
    Sketcher.Constraint("Equal", 1, 3),
    Sketcher.Constraint("Equal", 2, 4),
    Sketcher.Constraint("Equal", 3, 5),
    Sketcher.Constraint("Equal", 4, 6),
    Sketcher.Constraint("Equal", 5, 7),
    Sketcher.Constraint("Horizontal", 1, 3, 2, 3),
    Sketcher.Constraint("Horizontal", 5, 3, 6, 3),
    Sketcher.Constraint("Vertical", 3, 3, 4, 3),
    Sketcher.Constraint("Vertical", 1, 3, 6, 3),
    Sketcher.Constraint("Diameter", 0, 6.0),
    Sketcher.Constraint("Diameter", 1, 2.7),
    Sketcher.Constraint("DistanceX", 0, 3, 2, 3, 49.0),
    Sketcher.Constraint("DistanceY", 2, 3, 4, 3, 58.0),
    Sketcher.Constraint("DistanceX", 0, 3, -1, 1, 24.673182),
    Sketcher.Constraint("DistanceY", 0, 3, -1, 1, 28.763886),
])
pad4 = body.newObject("PartDesign::Pad", "Pad003")
pad4.Profile = sketch9
pad4.Length = 5
pad4.Reversed = True

# Sketch on XY plane
sketch10 = body.newObject("Sketcher::SketchObject", "Sketch009")
sketch10.AttachmentSupport = (doc.getObject("XY_Plane"), [""])
sketch10.MapMode = "FlatFace"
sketch10.AttachmentOffset = App.Placement(Vector(0, 0, 68.916365), App.Rotation())
sketch10.addGeometry([
    Part.Circle(Vector(24.3, -28.8, 0), Vector(0, 0, 1), 1.4),
    Part.Circle(Vector(-24.7, -28.8, 0), Vector(0, 0, 1), 1.4),
    Part.Circle(Vector(-24.7, 29.2, 0), Vector(0, 0, 1), 1.4),
    Part.Circle(Vector(24.3, 29.2, 0), Vector(0, 0, 1), 1.4),
], False)
sketch10.addConstraint([
    Sketcher.Constraint("Equal", 0, 1),
    Sketcher.Constraint("Equal", 1, 2),
    Sketcher.Constraint("Equal", 2, 3),
    Sketcher.Constraint("Horizontal", 0, 3, 1, 3),
    Sketcher.Constraint("Horizontal", 2, 3, 3, 3),
    Sketcher.Constraint("Vertical", 1, 3, 2, 3),
    Sketcher.Constraint("Vertical", 0, 3, 3, 3),
    Sketcher.Constraint("Diameter", 0, 2.7),
    Sketcher.Constraint("DistanceX", 1, 3, 0, 3, 49.0),
    Sketcher.Constraint("DistanceY", 1, 3, 2, 3, 58.0),
    Sketcher.Constraint("DistanceX", -1, 1, 0, 3, 24.326818),
    Sketcher.Constraint("DistanceY", 0, 3, -1, 1, 28.763886),
])
pocket6 = body.newObject("PartDesign::Pocket", "Pocket005")
pocket6.Profile = sketch10
pocket6.Length = 23
pocket6.Midplane = True

doc.recompute()
